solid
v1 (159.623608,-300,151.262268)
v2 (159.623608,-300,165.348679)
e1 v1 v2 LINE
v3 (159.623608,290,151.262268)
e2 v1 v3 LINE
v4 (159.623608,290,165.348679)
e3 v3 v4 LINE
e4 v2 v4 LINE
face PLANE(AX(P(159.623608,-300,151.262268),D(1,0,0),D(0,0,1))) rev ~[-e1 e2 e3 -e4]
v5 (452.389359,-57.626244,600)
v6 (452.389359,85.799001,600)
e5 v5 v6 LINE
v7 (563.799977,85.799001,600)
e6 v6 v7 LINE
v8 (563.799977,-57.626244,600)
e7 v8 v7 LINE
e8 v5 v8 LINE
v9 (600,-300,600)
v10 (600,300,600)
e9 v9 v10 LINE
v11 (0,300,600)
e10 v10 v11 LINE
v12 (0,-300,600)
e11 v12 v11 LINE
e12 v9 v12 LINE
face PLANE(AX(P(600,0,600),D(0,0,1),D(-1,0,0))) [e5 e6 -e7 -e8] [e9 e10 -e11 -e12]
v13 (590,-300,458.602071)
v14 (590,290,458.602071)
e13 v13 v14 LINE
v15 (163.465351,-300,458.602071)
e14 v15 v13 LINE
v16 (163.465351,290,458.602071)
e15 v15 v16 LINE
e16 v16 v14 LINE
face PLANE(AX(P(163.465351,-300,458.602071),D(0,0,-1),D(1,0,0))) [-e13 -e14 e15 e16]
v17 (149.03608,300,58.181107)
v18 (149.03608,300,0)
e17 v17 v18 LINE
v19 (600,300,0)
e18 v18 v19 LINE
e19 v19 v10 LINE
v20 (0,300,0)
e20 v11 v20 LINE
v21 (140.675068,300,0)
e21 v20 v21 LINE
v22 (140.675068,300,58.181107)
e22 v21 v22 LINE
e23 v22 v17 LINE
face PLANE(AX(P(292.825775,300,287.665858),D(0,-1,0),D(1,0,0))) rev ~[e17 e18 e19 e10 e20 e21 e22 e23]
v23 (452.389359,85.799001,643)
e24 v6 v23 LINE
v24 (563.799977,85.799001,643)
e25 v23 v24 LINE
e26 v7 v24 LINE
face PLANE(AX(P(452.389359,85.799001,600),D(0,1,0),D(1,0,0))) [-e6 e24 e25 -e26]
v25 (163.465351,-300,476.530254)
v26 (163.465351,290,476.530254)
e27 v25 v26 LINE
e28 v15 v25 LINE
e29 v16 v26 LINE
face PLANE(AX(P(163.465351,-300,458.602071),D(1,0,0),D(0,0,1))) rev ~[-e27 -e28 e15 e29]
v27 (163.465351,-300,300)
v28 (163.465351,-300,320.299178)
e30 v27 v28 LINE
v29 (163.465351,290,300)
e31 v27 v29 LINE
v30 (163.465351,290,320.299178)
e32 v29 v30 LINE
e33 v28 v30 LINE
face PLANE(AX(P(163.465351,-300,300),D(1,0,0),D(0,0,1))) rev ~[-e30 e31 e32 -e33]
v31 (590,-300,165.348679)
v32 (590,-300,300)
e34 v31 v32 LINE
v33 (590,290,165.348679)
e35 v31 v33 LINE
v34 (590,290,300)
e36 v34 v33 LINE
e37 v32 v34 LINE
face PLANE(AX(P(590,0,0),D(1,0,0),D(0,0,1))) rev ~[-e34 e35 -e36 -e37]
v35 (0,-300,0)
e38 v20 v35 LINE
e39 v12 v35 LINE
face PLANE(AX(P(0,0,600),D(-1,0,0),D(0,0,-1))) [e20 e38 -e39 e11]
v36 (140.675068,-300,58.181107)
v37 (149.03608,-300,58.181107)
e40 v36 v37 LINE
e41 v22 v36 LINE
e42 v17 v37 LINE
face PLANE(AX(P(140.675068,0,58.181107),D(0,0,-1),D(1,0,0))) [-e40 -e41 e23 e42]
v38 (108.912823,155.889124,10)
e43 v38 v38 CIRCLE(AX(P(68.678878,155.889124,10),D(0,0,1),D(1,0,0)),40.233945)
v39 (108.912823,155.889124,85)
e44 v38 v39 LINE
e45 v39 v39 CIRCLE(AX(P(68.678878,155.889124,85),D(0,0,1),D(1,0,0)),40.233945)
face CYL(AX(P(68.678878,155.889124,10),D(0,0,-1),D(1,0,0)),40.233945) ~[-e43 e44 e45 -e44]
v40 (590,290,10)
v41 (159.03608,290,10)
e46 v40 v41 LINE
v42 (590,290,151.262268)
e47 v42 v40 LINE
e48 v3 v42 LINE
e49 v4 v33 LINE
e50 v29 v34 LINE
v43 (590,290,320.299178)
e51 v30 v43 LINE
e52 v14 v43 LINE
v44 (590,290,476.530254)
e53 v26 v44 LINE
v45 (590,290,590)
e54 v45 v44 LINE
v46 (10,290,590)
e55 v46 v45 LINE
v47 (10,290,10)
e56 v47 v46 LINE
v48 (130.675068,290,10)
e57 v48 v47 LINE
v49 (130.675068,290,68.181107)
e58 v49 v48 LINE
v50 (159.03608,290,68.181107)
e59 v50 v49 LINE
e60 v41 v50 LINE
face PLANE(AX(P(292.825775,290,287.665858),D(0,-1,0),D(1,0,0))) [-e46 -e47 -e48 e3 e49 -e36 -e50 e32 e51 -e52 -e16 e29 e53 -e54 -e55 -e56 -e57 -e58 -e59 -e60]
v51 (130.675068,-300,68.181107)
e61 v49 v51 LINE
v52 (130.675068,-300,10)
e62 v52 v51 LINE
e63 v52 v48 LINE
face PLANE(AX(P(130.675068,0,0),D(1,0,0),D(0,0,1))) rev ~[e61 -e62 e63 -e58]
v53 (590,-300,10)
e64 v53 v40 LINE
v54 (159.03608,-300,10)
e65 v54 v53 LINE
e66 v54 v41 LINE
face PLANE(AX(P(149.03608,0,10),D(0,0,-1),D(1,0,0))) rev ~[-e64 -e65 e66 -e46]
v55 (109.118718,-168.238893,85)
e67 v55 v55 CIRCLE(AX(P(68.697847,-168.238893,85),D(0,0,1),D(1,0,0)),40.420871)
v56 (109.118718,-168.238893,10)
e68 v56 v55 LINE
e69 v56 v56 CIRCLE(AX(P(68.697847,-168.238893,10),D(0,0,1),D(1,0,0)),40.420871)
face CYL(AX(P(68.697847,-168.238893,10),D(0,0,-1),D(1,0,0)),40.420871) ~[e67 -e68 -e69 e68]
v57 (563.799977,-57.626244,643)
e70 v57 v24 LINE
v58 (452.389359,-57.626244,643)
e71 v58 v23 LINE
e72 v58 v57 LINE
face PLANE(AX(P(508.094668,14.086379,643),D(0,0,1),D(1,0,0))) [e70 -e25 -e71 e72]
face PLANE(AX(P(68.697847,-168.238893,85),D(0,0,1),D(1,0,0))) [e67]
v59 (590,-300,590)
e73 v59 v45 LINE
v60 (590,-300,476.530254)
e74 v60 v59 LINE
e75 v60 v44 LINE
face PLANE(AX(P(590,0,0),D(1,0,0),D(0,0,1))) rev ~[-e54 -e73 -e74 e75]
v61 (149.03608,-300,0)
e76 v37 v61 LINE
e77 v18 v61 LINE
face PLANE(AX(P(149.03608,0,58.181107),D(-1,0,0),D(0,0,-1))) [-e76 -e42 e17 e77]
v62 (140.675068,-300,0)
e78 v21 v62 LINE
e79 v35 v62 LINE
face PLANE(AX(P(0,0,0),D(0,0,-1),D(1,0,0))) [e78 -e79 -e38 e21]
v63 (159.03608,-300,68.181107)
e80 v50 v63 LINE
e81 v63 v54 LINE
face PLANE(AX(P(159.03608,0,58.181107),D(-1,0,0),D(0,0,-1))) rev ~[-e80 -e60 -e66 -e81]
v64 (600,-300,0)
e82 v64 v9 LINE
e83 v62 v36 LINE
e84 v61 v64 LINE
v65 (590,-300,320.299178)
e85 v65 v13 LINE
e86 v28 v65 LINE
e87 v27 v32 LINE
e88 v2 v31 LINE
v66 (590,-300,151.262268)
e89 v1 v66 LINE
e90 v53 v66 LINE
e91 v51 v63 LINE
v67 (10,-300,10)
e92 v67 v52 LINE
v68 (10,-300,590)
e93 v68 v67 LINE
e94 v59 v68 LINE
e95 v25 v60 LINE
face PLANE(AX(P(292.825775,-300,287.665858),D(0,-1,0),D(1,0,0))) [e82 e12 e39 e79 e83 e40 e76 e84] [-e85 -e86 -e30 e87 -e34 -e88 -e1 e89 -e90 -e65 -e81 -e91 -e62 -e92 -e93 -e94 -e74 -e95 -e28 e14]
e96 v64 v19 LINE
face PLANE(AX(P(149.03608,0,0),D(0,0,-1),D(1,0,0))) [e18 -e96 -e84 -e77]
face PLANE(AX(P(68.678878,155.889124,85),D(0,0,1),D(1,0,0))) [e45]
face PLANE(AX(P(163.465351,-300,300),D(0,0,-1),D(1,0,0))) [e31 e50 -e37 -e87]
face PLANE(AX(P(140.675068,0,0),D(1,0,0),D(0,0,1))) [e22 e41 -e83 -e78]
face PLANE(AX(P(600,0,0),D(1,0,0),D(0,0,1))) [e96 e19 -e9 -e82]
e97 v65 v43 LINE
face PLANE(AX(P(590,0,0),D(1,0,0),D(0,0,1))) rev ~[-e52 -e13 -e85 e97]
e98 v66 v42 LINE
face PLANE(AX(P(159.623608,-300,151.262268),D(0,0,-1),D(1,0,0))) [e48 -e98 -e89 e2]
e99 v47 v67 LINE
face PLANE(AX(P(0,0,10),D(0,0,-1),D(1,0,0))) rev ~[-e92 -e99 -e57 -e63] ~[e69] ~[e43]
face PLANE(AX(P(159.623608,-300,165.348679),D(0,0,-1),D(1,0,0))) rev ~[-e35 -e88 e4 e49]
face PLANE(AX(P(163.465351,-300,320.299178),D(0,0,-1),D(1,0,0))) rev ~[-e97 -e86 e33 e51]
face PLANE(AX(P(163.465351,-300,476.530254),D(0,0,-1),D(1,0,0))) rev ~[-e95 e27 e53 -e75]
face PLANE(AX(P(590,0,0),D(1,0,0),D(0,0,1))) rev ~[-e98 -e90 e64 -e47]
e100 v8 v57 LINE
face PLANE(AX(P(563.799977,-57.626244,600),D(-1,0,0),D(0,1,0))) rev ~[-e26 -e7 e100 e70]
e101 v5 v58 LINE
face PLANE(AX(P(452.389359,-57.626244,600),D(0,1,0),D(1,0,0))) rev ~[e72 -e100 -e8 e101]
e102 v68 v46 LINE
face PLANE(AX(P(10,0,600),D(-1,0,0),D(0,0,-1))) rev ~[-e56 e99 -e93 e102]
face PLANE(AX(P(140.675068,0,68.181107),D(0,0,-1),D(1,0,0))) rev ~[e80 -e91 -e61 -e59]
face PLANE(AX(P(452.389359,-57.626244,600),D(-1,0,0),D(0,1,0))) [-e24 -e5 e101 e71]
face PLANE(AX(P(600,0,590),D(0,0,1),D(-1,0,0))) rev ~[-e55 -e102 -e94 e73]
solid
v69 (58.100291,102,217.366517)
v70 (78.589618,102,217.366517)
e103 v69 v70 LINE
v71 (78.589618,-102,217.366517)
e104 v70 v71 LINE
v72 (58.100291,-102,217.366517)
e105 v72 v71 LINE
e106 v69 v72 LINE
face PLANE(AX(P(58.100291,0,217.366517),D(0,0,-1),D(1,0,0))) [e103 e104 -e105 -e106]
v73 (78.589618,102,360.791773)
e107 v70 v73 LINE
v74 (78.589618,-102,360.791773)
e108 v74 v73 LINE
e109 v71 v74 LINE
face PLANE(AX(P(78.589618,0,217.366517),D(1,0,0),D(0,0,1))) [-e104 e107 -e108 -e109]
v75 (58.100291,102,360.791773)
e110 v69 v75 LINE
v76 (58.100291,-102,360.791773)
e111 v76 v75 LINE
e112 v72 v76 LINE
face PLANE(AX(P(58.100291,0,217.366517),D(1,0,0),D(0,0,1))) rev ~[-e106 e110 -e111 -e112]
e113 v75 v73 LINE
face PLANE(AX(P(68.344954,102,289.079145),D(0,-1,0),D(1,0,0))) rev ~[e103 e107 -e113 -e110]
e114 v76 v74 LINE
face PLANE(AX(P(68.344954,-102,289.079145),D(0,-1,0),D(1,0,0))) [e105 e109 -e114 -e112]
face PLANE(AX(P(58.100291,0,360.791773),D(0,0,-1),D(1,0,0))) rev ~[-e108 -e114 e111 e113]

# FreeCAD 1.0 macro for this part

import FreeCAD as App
import Part
import Sketcher

V = App.Vector


def faces_at(feature, points):
    """Names of the faces that lie closest to the given points."""
    faces = feature.Shape.Faces
    near = lambda p: min(range(len(faces)), key=lambda i: faces[i].distToShape(Part.Vertex(*p))[0])
    return sorted({f"Face{near(p) + 1}" for p in points})


def add_polygon(sketch, points):
    """Adds a closed chain of lines whose ends are joined by coincident constraints."""
    first, n = sketch.GeometryCount, len(points)
    for a, b in zip(points, points[1:] + points[:1]):
        sketch.addGeometry(Part.LineSegment(App.Vector(*a, 0), App.Vector(*b, 0)), False)
    for i in range(n):
        sketch.addConstraint(Sketcher.Constraint("Coincident", first + i, 2, first + (i + 1) % n, 1))

doc = App.newDocument("Part")
params = doc.addObject("Spreadsheet::Sheet", "Params")
for row, (alias, value) in enumerate([
    ("sketch1_width", "600 mm"),
    ("pad1_length", "600 mm"),
    ("thickness_wall", "10 mm"),
    ("pad2_length", "75 mm"),
    ("pad4_length", "43 mm"),
    ("pad5_length", "204 mm"),
], start=1):
    params.set(f"A{row}", alias)
    params.set(f"B{row}", "=" + value)
    params.setAlias(f"B{row}", alias)

body = doc.addObject("PartDesign::Body", "Body")

# Sketch on XZ plane
sketch1 = doc.addObject("Sketcher::SketchObject", "Sketch")
body.addObject(sketch1)
sketch1.AttachmentSupport = (doc.XZ_Plane, [""])
sketch1.MapMode = "FlatFace"
add_polygon(sketch1, [(0, 600), (0, 0), (141, 0), (141, 58), (149, 58), (149, 0), (600, 0), (600, 600)])  # lines 0-7
sketch1.addConstraint([
    Sketcher.Constraint("Vertical", 0),
    Sketcher.Constraint("Horizontal", 1),
    Sketcher.Constraint("Vertical", 2),
    Sketcher.Constraint("Horizontal", 3),
    Sketcher.Constraint("Vertical", 4),
    Sketcher.Constraint("Horizontal", 5),
    Sketcher.Constraint("Vertical", 6),
    Sketcher.Constraint("Horizontal", 7),
    Sketcher.Constraint("Coincident", 0, 2, -1, 1),
    Sketcher.Constraint("PointOnObject", 4, 2, -1),
    Sketcher.Constraint("Equal", 7, 0),
    Sketcher.Constraint("DistanceX", 7, 2, 7, 1, 600.0),
    Sketcher.Constraint("DistanceX", 3, 1, 3, 2, 8.361012),
    Sketcher.Constraint("DistanceX", 5, 1, 5, 2, 450.96392),
    Sketcher.Constraint("DistanceY", 2, 1, 2, 2, 58.181107),
])
sketch1.setExpression("Constraints[19]", "Params.sketch1_width")
pad1 = doc.addObject("PartDesign::Pad", "Pad")
body.addObject(pad1)
pad1.Profile = sketch1
pad1.setExpression("Length", "Params.pad1_length")
pad1.Midplane = True
doc.recompute()

thickness = doc.addObject("PartDesign::Thickness", "Thickness")
body.addObject(thickness)
thickness.Base = (pad1, faces_at(pad1, [(300, -300, 300)]))
thickness.setExpression("Value", "Params.thickness_wall")
thickness.Reversed = True
thickness.Join = "Intersection"

# Sketch on XY plane
sketch2 = doc.addObject("Sketcher::SketchObject", "Sketch001")
body.addObject(sketch2)
sketch2.AttachmentSupport = (doc.XY_Plane, [""])
sketch2.MapMode = "FlatFace"
sketch2.AttachmentOffset = App.Placement(V(0, 0, 10), App.Rotation())
sketch2.addGeometry([
    Part.Circle(V(69, -168, 0), V(0, 0, 1), 40),
    Part.Circle(V(69, 156, 0), V(0, 0, 1), 40),
], False)
sketch2.addConstraint([
    Sketcher.Constraint("Diameter", 0, 80.841741),
    Sketcher.Constraint("Diameter", 1, 80.46789),
    Sketcher.Constraint("DistanceX", -1, 1, 1, 3, 68.678878),
    Sketcher.Constraint("DistanceX", 1, 3, 0, 3, 0.018969),
    Sketcher.Constraint("DistanceY", 0, 3, -1, 1, 168.238893),
    Sketcher.Constraint("DistanceY", -1, 1, 1, 3, 155.889124),
])
pad2 = doc.addObject("PartDesign::Pad", "Pad001")
body.addObject(pad2)
pad2.Profile = sketch2
pad2.setExpression("Length", "Params.pad2_length")

# Sketch on XZ plane
sketch3 = doc.addObject("Sketcher::SketchObject", "Sketch002")
body.addObject(sketch3)
sketch3.AttachmentSupport = (doc.XZ_Plane, [""])
sketch3.MapMode = "FlatFace"
sketch3.AttachmentOffset = App.Placement(V(0, 0, 300), App.Rotation())
add_polygon(sketch3, [(163, 477), (163, 459), (590, 459), (590, 477)])  # lines 0-3
add_polygon(sketch3, [(163, 320), (163, 300), (590, 300), (590, 320)])  # lines 4-7
add_polygon(sketch3, [(160, 165), (160, 151), (590, 151), (590, 165)])  # lines 8-11
sketch3.addConstraint([
    Sketcher.Constraint("Vertical", 0),
    Sketcher.Constraint("Horizontal", 1),
    Sketcher.Constraint("Vertical", 2),
    Sketcher.Constraint("Horizontal", 3),
    Sketcher.Constraint("Vertical", 4),
    Sketcher.Constraint("Horizontal", 5),
    Sketcher.Constraint("Vertical", 6),
    Sketcher.Constraint("Horizontal", 7),
    Sketcher.Constraint("Vertical", 8),
    Sketcher.Constraint("Horizontal", 9),
    Sketcher.Constraint("Vertical", 10),
    Sketcher.Constraint("Horizontal", 11),
    Sketcher.Constraint("Vertical", 3, 2, 4, 2),
    Sketcher.Constraint("Vertical", 2, 2, 5, 2),
    Sketcher.Constraint("Vertical", 6, 2, 9, 2),
    Sketcher.Constraint("DistanceX", -1, 1, 1, 2, 590.0),
    Sketcher.Constraint("DistanceY", -1, 1, 4, 2, 300.0),
    Sketcher.Constraint("DistanceX", 1, 1, 1, 2, 426.534649),
    Sketcher.Constraint("DistanceY", 4, 2, 4, 1, 20.299178),
    Sketcher.Constraint("DistanceY", 8, 2, 8, 1, 14.08641),
    Sketcher.Constraint("DistanceY", 10, 2, 6, 2, 154.9505),
    Sketcher.Constraint("DistanceX", 9, 1, 9, 2, 430.376392),
    Sketcher.Constraint("DistanceY", 0, 2, 0, 1, 17.928183),
    Sketcher.Constraint("DistanceY", -1, 1, 0, 2, 458.602071),
])
pad3 = doc.addObject("PartDesign::Pad", "Pad002")
body.addObject(pad3)
pad3.Profile = sketch3
pad3.Type = "UpToLast"
pad3.Reversed = True

# Sketch on XY plane
sketch4 = doc.addObject("Sketcher::SketchObject", "Sketch003")
body.addObject(sketch4)
sketch4.AttachmentSupport = (doc.XY_Plane, [""])
sketch4.MapMode = "FlatFace"
sketch4.AttachmentOffset = App.Placement(V(0, 0, 600), App.Rotation())
add_polygon(sketch4, [(452, 86), (452, -58), (564, -58), (564, 86)])  # lines 0-3
sketch4.addConstraint([
    Sketcher.Constraint("Vertical", 0),
    Sketcher.Constraint("Horizontal", 1),
    Sketcher.Constraint("Vertical", 2),
    Sketcher.Constraint("Horizontal", 3),
    Sketcher.Constraint("DistanceY", -1, 1, 2, 2, 85.799001),
    Sketcher.Constraint("DistanceX", 1, 1, 1, 2, 111.410618),
    Sketcher.Constraint("DistanceY", 0, 2, 0, 1, 143.425245),
    Sketcher.Constraint("DistanceX", -1, 1, 0, 2, 452.389359),
])
pad4 = doc.addObject("PartDesign::Pad", "Pad003")
body.addObject(pad4)
pad4.Profile = sketch4
pad4.setExpression("Length", "Params.pad4_length")
body2 = doc.addObject("PartDesign::Body", "Body001")

# Sketch on XZ plane
sketch5 = doc.addObject("Sketcher::SketchObject", "Sketch004")
body2.addObject(sketch5)
sketch5.AttachmentSupport = (doc.getObject("XZ_Plane001"), [""])
sketch5.MapMode = "FlatFace"
add_polygon(sketch5, [(58, 361), (58, 217), (79, 217), (79, 361)])  # lines 0-3
sketch5.addConstraint([
    Sketcher.Constraint("Vertical", 0),
    Sketcher.Constraint("Horizontal", 1),
    Sketcher.Constraint("Vertical", 2),
    Sketcher.Constraint("Horizontal", 3),
    Sketcher.Constraint("DistanceX", 1, 1, 1, 2, 20.489328),
    Sketcher.Constraint("DistanceY", 0, 2, 0, 1, 143.425256),
    Sketcher.Constraint("DistanceX", -1, 1, 0, 2, 58.100291),
    Sketcher.Constraint("DistanceY", -1, 1, 0, 2, 217.366517),
])
pad5 = doc.addObject("PartDesign::Pad", "Pad004")
body2.addObject(pad5)
pad5.Profile = sketch5
pad5.setExpression("Length", "Params.pad5_length")
pad5.Midplane = True

doc.recompute()
